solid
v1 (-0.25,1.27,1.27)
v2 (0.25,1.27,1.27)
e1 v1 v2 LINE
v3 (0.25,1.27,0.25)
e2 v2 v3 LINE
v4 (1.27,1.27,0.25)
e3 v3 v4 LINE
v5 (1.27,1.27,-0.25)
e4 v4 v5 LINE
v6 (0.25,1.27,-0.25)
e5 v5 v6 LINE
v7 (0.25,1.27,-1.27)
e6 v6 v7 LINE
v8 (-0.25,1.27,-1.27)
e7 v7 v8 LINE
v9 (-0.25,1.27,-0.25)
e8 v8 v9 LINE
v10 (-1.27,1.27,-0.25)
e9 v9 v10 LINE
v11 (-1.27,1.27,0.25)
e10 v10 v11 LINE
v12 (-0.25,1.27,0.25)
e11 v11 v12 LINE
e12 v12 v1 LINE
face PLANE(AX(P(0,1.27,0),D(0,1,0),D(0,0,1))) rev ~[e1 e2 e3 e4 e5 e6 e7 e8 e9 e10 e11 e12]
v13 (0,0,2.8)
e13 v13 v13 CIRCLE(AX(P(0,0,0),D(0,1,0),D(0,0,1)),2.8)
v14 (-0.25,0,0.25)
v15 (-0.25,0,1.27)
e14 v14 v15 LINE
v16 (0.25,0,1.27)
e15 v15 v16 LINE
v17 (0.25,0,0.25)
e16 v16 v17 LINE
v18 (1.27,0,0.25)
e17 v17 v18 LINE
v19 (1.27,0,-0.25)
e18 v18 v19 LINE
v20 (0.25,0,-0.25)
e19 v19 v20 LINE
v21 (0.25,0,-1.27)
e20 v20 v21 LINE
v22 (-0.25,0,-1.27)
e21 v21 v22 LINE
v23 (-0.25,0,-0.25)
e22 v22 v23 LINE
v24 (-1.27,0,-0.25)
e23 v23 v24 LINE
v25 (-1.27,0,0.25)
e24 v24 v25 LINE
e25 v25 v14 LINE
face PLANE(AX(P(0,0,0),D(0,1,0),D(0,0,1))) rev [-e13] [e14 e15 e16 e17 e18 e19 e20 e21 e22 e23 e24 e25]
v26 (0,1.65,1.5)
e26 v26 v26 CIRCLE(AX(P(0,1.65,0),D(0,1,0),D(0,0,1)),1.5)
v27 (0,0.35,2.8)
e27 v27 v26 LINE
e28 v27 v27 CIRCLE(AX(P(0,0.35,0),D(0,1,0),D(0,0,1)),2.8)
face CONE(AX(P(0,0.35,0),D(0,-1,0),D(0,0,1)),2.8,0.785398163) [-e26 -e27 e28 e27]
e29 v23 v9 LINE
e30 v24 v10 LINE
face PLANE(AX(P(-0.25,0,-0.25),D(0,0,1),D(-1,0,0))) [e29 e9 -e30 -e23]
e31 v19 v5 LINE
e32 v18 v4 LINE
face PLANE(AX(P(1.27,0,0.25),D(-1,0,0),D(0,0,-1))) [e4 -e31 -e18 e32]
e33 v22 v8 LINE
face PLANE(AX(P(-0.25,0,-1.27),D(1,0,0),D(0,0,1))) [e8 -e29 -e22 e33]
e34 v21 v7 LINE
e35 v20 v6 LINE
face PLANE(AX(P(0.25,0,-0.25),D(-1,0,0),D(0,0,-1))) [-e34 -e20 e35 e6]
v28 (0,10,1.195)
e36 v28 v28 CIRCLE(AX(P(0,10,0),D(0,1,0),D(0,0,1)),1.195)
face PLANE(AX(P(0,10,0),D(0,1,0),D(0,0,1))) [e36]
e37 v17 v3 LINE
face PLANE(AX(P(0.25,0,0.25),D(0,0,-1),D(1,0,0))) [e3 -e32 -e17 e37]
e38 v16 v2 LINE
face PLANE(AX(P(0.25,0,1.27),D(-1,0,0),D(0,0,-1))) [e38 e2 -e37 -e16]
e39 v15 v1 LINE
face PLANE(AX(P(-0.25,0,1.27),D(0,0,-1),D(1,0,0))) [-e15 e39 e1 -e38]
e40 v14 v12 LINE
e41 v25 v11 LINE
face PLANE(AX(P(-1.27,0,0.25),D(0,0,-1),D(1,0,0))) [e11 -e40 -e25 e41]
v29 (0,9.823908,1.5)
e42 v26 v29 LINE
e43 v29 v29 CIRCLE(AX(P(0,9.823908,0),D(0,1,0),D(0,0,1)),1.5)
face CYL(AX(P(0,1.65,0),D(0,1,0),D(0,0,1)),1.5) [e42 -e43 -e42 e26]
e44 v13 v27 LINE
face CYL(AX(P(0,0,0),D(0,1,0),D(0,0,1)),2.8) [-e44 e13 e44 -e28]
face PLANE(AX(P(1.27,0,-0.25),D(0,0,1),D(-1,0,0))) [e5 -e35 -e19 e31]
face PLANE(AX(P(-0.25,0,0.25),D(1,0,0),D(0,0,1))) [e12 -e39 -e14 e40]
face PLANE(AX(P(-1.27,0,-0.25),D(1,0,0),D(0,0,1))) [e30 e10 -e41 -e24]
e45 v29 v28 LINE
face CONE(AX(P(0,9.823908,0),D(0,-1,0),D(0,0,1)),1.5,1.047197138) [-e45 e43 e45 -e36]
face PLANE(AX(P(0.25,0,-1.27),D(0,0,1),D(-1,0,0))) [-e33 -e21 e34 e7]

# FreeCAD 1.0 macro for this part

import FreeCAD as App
import Part
import Sketcher
Q = App.Units.Quantity


def add_polygon(sketch, points):
    """Adds a closed chain of lines whose ends are joined by coincident constraints."""
    first, n = sketch.GeometryCount, len(points)
    for a, b in zip(points, points[1:] + points[:1]):
        sketch.addGeometry(Part.LineSegment(App.Vector(*a, 0), App.Vector(*b, 0)), False)
    for i in range(n):
        sketch.addConstraint(Sketcher.Constraint("Coincident", first + i, 2, first + (i + 1) % n, 1))

doc = App.newDocument("Part")
body = doc.addObject("PartDesign::Body", "Body")

# Sketch on YZ plane
sketch1 = doc.addObject("Sketcher::SketchObject", "Sketch")
body.addObject(sketch1)
sketch1.AttachmentSupport = (doc.YZ_Plane, [""])
sketch1.MapMode = "FlatFace"
add_polygon(sketch1, [(0, 2.8), (0, 0), (10, 0), (10, 1.195), (9.823908, 1.5), (1.65, 1.5), (0.35, 2.8)])  # lines 0-6
sketch1.addConstraint([
    Sketcher.Constraint("Vertical", 0),
    Sketcher.Constraint("Horizontal", 1),
    Sketcher.Constraint("Vertical", 2),
    Sketcher.Constraint("Horizontal", 4),
    Sketcher.Constraint("Horizontal", 6),
    Sketcher.Constraint("Coincident", 0, 2, -1, 1),
    Sketcher.Constraint("DistanceX", 1, 1, 1, 2, 10.0),
    Sketcher.Constraint("Angle", 5, Q("135 deg")),
    Sketcher.Constraint("DistanceY", 0, 2, 0, 1, 2.8),
    Sketcher.Constraint("DistanceX", 6, 2, 6, 1, 0.35),
    Sketcher.Constraint("DistanceY", -1, 1, 3, 2, 1.5),
    Sketcher.Constraint("DistanceY", 2, 1, 2, 2, 1.195),
    Sketcher.Constraint("DistanceX", 4, 2, 4, 1, 8.173908),
])
revolution = doc.addObject("PartDesign::Revolution", "Revolution")
body.addObject(revolution)
revolution.Profile = sketch1
revolution.ReferenceAxis = (sketch1, ["H_Axis"])
revolution.Angle = 360

# Sketch on XZ plane
sketch2 = doc.addObject("Sketcher::SketchObject", "Sketch001")
body.addObject(sketch2)
sketch2.AttachmentSupport = (doc.XZ_Plane, [""])
sketch2.MapMode = "FlatFace"
add_polygon(sketch2, [(0.25, 0.25), (0.25, 1.27), (-0.25, 1.27), (-0.25, 0.25), (-1.27, 0.25), (-1.27, -0.25), (-0.25, -0.25), (-0.25, -1.27), (0.25, -1.27), (0.25, -0.25), (1.27, -0.25), (1.27, 0.25)])  # lines 0-11
sketch2.addConstraint([
    Sketcher.Constraint("Vertical", 0),
    Sketcher.Constraint("Horizontal", 1),
    Sketcher.Constraint("Vertical", 2),
    Sketcher.Constraint("Horizontal", 3),
    Sketcher.Constraint("Vertical", 4),
    Sketcher.Constraint("Horizontal", 5),
    Sketcher.Constraint("Vertical", 6),
    Sketcher.Constraint("Horizontal", 7),
    Sketcher.Constraint("Vertical", 8),
    Sketcher.Constraint("Horizontal", 9),
    Sketcher.Constraint("Vertical", 10),
    Sketcher.Constraint("Horizontal", 11),
    Sketcher.Constraint("Symmetric", 0, 2, 6, 2, -1, 1),
    Sketcher.Constraint("Symmetric", 2, 2, 8, 2, -1, 1),
    Sketcher.Constraint("Symmetric", 4, 2, 10, 2, -1, 1),
    Sketcher.Constraint("Symmetric", 5, 2, 8, 2, -2),
    Sketcher.Constraint("Equal", 11, 0),
    Sketcher.Constraint("Equal", 7, 4),
    Sketcher.Constraint("DistanceX", 1, 2, 1, 1, 0.5),
    Sketcher.Constraint("DistanceX", 3, 2, 3, 1, 1.02),
])
pocket1 = doc.addObject("PartDesign::Pocket", "Pocket")
body.addObject(pocket1)
pocket1.Profile = sketch2
pocket1.Length = 1.27

doc.recompute()
